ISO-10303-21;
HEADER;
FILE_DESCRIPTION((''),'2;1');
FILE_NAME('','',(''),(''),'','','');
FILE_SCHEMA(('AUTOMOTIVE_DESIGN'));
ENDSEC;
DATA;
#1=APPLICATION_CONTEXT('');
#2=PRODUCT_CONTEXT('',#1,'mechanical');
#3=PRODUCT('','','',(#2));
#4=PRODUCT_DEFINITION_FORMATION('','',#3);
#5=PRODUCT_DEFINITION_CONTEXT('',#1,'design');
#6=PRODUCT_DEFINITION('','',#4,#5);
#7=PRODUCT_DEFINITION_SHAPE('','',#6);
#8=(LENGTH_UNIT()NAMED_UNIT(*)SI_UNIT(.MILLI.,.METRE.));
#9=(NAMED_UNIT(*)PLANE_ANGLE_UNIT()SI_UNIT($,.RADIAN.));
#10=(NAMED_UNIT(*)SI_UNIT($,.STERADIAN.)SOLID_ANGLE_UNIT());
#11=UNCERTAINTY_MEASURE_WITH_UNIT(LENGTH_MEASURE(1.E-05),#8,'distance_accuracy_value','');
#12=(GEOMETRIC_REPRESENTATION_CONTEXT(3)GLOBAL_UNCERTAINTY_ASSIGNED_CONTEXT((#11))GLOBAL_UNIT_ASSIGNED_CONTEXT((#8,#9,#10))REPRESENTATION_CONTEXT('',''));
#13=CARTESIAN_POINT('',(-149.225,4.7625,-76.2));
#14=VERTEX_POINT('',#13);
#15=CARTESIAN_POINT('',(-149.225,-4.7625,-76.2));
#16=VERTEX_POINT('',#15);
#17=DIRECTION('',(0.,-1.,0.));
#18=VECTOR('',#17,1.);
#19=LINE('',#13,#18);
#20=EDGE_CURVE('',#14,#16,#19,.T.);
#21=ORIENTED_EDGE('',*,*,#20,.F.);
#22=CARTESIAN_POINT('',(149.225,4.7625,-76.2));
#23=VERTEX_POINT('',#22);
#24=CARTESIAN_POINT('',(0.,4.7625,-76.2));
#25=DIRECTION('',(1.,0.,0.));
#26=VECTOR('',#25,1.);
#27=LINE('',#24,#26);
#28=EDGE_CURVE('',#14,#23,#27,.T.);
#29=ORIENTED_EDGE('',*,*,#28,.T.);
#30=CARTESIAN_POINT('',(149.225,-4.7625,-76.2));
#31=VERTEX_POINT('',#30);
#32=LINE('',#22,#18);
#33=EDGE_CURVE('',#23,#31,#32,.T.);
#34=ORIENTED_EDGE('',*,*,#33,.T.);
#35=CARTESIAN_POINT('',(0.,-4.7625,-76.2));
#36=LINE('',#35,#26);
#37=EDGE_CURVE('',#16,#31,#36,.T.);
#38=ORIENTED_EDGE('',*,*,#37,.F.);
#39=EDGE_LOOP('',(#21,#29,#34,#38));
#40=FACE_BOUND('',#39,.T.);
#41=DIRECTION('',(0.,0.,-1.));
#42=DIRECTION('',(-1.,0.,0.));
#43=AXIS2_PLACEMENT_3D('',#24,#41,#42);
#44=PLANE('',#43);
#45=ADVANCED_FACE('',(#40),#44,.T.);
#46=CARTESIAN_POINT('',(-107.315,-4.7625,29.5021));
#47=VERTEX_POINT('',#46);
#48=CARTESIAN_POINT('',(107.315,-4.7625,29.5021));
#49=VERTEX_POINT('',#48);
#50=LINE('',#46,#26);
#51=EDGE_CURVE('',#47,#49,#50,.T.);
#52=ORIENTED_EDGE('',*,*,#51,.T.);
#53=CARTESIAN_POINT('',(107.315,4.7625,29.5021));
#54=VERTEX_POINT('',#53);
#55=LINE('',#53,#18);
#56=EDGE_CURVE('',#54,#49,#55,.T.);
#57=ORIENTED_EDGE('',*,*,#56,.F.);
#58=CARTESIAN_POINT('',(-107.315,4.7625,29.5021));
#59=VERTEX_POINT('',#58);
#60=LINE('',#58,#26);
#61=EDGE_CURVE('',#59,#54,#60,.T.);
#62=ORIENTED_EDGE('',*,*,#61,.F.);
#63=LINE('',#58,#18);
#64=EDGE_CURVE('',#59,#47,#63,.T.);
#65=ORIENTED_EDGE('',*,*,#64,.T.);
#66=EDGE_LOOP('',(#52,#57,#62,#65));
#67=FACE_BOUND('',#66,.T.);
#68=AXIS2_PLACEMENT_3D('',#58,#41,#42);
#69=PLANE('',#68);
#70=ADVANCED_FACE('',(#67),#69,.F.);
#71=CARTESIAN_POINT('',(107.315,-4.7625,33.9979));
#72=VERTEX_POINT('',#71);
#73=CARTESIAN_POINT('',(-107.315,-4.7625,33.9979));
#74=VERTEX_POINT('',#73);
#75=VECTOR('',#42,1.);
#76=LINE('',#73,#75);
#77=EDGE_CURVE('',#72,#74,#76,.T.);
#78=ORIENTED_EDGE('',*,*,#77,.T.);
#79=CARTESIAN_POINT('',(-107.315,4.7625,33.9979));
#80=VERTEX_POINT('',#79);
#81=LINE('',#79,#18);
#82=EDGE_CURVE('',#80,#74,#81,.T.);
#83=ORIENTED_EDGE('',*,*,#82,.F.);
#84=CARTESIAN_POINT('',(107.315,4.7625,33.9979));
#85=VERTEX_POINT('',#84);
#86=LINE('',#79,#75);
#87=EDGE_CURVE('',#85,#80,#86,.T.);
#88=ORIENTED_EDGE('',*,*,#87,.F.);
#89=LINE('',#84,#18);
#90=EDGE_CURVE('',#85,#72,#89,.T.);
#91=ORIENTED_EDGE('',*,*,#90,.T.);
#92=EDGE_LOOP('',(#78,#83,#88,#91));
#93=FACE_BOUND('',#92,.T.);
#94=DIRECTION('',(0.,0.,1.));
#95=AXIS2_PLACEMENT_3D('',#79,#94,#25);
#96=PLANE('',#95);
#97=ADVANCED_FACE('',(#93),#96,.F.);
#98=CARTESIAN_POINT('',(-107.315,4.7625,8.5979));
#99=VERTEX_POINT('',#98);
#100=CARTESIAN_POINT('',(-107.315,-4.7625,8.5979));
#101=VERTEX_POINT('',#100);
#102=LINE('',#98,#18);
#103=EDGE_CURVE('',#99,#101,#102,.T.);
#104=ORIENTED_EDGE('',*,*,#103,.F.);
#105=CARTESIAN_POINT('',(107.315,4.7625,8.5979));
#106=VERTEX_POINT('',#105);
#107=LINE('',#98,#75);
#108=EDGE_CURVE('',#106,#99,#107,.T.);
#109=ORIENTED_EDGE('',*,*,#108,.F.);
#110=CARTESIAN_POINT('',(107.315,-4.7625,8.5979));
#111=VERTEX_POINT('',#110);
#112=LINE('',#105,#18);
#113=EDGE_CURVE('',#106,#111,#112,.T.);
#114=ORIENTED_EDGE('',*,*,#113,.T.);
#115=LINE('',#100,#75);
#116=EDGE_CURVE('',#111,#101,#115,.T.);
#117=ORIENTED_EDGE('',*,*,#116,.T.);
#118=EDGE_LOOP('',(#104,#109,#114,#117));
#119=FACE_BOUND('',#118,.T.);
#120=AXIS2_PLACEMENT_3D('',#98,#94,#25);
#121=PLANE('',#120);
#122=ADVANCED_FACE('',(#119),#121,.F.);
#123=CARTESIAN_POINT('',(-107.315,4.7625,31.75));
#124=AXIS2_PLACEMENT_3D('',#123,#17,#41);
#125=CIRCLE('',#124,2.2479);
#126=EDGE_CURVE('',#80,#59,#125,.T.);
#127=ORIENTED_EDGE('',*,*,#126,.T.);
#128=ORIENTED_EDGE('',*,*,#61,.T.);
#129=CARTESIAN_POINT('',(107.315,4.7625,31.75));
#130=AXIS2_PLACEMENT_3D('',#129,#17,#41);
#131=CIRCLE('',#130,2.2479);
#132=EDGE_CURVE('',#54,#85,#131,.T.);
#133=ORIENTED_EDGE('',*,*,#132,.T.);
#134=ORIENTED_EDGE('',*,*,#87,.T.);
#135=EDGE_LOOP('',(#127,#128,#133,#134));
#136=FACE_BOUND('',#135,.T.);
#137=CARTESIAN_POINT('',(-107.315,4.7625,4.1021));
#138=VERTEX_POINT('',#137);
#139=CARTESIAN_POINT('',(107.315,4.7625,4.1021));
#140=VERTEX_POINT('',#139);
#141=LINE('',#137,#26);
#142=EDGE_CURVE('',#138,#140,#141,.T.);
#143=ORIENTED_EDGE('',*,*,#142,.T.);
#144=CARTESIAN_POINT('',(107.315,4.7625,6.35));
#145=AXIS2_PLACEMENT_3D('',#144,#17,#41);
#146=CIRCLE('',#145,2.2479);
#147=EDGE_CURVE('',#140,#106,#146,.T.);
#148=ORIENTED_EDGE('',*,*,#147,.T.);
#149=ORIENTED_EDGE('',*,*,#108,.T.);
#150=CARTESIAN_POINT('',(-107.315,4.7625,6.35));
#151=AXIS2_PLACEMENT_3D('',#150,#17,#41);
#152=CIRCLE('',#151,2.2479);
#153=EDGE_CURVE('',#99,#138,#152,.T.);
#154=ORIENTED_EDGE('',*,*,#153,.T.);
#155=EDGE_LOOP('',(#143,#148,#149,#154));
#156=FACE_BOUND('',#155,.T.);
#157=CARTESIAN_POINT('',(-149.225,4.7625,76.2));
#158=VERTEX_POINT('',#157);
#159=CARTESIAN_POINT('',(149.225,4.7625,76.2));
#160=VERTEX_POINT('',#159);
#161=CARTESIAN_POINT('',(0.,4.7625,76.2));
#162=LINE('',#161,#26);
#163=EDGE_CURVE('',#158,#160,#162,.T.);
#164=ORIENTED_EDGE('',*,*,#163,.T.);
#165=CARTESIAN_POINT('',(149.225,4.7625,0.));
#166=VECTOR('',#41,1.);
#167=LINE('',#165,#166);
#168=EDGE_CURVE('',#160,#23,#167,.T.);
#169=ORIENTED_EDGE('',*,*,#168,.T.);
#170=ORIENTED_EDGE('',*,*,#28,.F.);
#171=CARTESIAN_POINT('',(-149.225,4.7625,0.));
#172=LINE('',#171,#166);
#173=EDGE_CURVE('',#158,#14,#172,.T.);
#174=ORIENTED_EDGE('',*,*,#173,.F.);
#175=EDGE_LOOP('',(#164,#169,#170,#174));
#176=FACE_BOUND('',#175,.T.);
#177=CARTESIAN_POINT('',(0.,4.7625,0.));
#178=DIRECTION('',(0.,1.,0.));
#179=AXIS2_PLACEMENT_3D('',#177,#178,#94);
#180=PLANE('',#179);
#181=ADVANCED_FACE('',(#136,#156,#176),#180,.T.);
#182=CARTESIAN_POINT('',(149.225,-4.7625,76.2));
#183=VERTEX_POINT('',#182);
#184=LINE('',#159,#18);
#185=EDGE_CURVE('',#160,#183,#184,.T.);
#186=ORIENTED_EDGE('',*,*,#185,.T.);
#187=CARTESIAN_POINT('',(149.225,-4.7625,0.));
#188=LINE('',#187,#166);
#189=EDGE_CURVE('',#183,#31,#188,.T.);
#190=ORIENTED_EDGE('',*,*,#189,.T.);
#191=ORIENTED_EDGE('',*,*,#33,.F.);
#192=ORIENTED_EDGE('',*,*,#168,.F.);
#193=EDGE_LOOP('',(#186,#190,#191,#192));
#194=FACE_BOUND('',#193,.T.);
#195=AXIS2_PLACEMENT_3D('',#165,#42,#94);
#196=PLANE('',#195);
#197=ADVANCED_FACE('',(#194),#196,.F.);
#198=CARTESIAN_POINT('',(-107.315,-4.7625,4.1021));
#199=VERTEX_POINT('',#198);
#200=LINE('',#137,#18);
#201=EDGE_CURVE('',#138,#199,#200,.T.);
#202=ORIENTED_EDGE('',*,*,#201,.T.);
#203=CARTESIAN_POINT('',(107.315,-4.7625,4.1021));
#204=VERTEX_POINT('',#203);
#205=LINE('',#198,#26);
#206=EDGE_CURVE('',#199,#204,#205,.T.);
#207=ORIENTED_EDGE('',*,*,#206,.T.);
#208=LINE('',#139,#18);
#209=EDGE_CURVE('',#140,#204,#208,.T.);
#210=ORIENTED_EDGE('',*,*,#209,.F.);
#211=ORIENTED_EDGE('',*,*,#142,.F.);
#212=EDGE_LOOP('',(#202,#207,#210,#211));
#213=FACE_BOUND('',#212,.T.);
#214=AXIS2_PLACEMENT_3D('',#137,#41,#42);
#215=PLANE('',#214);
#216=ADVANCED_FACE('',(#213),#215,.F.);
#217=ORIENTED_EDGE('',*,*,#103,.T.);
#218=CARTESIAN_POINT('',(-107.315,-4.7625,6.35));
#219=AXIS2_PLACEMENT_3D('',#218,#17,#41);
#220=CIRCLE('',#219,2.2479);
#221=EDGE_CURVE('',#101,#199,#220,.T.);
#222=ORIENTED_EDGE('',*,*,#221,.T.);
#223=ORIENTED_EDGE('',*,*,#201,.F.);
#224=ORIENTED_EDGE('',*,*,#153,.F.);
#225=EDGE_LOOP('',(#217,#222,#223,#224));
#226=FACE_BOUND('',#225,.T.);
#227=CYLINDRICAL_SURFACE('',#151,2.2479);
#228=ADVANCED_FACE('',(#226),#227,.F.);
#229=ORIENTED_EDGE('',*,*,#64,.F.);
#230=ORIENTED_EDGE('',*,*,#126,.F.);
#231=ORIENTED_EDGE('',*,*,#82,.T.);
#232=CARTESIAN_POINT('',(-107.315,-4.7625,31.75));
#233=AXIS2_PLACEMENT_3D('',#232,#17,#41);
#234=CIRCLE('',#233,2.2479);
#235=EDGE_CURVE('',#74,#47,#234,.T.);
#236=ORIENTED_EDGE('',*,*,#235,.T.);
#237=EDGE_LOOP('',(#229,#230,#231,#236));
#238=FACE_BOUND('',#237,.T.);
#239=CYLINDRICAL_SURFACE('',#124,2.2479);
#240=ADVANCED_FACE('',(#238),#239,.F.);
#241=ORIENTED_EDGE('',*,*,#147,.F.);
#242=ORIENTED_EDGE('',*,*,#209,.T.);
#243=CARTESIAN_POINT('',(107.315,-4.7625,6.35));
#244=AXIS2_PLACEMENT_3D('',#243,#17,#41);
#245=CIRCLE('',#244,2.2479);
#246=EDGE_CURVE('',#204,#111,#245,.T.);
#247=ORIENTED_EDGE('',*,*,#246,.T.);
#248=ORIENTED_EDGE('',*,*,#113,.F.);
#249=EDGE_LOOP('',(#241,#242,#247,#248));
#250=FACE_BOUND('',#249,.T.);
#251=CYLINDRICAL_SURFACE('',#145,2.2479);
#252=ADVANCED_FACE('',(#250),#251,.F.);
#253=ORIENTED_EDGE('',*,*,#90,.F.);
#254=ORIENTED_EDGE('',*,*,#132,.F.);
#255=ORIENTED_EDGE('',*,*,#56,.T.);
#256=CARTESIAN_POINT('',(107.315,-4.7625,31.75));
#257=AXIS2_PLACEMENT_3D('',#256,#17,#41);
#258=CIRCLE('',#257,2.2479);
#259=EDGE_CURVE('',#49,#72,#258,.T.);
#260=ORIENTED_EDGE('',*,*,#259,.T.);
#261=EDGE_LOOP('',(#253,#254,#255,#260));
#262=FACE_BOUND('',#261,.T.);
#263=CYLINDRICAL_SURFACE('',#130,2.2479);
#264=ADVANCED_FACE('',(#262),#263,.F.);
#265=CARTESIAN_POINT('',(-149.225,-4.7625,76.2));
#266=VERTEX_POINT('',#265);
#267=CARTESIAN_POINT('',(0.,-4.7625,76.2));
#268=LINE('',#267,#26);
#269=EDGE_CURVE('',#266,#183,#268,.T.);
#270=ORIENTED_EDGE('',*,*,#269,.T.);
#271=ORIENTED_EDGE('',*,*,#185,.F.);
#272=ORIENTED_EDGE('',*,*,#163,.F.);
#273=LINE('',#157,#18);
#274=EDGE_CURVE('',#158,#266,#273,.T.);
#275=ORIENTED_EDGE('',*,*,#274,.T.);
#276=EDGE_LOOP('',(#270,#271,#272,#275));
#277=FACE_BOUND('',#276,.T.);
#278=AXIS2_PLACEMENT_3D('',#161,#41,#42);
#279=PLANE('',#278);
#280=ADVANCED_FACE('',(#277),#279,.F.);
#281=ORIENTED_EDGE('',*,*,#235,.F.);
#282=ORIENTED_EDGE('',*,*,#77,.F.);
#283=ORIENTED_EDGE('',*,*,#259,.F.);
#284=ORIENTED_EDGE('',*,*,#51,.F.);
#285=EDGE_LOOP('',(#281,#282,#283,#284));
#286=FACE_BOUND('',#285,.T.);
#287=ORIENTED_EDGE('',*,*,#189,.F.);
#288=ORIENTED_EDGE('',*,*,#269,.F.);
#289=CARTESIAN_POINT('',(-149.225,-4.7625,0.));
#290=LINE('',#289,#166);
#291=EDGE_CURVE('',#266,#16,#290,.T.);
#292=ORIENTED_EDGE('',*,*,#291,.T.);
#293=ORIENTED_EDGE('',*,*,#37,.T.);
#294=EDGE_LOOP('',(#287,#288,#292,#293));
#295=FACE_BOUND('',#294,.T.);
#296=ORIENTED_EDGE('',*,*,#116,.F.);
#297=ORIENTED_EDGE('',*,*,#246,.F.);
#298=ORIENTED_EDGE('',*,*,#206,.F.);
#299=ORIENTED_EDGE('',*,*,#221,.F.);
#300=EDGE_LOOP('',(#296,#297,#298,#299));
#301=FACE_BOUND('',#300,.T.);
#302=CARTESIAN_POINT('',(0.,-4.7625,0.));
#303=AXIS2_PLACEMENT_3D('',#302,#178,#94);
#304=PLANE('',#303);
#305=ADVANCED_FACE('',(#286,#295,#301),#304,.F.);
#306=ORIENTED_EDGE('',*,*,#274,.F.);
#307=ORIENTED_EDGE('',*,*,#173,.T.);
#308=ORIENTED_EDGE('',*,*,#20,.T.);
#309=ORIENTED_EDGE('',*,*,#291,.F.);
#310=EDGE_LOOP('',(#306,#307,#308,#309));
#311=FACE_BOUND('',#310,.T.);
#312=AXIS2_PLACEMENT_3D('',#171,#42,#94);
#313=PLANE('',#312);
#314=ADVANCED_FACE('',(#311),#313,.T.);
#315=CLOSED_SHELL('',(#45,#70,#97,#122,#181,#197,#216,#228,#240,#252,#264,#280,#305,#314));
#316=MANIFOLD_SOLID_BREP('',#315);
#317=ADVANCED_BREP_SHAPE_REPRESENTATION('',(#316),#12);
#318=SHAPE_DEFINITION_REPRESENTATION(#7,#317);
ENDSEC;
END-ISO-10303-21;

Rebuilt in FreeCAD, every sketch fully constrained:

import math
import FreeCAD as App
import Part
import Sketcher
from FreeCAD import Vector
Q = App.Units.Quantity


def add_polygon(sketch, points):
    """Adds a closed chain of lines whose ends are joined by coincident constraints."""
    first, n = sketch.GeometryCount, len(points)
    for a, b in zip(points, points[1:] + points[:1]):
        sketch.addGeometry(Part.LineSegment(App.Vector(*a, 0), App.Vector(*b, 0)), False)
    for i in range(n):
        sketch.addConstraint(Sketcher.Constraint("Coincident", first + i, 2, first + (i + 1) % n, 1))

doc = App.newDocument("Part")
body = doc.addObject("PartDesign::Body", "Body")

# Sketch on XZ plane
sketch1 = body.newObject("Sketcher::SketchObject", "Sketch")
sketch1.AttachmentSupport = (doc.getObject("XZ_Plane"), [""])
sketch1.MapMode = "FlatFace"
add_polygon(sketch1, [(-149, -76), (-149, 76), (149, 76), (149, -76)])  # lines 0-3
sketch1.addConstraint([
    Sketcher.Constraint("Vertical", 0),
    Sketcher.Constraint("Horizontal", 1),
    Sketcher.Constraint("Vertical", 2),
    Sketcher.Constraint("Horizontal", 3),
    Sketcher.Constraint("Symmetric", 0, 2, 2, 2, -1, 1),
    Sketcher.Constraint("DistanceY", 0, 1, 0, 2, Q("6 in")),
    Sketcher.Constraint("DistanceX", 1, 1, 1, 2, Q("11.75 in")),
])
pad1 = body.newObject("PartDesign::Pad", "Pad")
pad1.Profile = sketch1
pad1.Length = Q("0.375 in")
pad1.Midplane = True

# Sketch on XZ plane
sketch2 = body.newObject("Sketcher::SketchObject", "Sketch001")
sketch2.AttachmentSupport = (doc.getObject("XZ_Plane"), [""])
sketch2.MapMode = "FlatFace"
sketch2.AttachmentOffset = App.Placement(Vector(0, 0, 0.1875 * 25.4), App.Rotation())
sketch2.addGeometry([
    Part.LineSegment(Vector(107.3, 34, 0), Vector(-107.3, 34, 0)),  # 0
    Part.ArcOfCircle(Part.Circle(Vector(-107.3, 31.8, 0), Vector(0, 0, 1), 2.2), math.radians(90), math.radians(270)),  # 1
    Part.LineSegment(Vector(-107.3, 29.5, 0), Vector(107.3, 29.5, 0)),  # 2
    Part.ArcOfCircle(Part.Circle(Vector(107.3, 31.8, 0), Vector(0, 0, 1), 2.2), math.radians(-90), math.radians(90)),  # 3
    Part.LineSegment(Vector(107.3, 8.6, 0), Vector(-107.3, 8.6, 0)),  # 4
    Part.ArcOfCircle(Part.Circle(Vector(-107.3, 6.3, 0), Vector(0, 0, 1), 2.2), math.radians(90), math.radians(270)),  # 5
    Part.LineSegment(Vector(-107.3, 4.1, 0), Vector(107.3, 4.1, 0)),  # 6
    Part.ArcOfCircle(Part.Circle(Vector(107.3, 6.3, 0), Vector(0, 0, 1), 2.2), math.radians(-90), math.radians(90)),  # 7
], False)
sketch2.addConstraint([
    Sketcher.Constraint("Tangent", 0, 2, 1, 1),
    Sketcher.Constraint("Tangent", 1, 2, 2, 1),
    Sketcher.Constraint("Tangent", 2, 2, 3, 1),
    Sketcher.Constraint("Tangent", 3, 2, 0, 1),
    Sketcher.Constraint("Tangent", 4, 2, 5, 1),
    Sketcher.Constraint("Tangent", 5, 2, 6, 1),
    Sketcher.Constraint("Tangent", 6, 2, 7, 1),
    Sketcher.Constraint("Tangent", 7, 2, 4, 1),
    Sketcher.Constraint("Horizontal", 0),
    Sketcher.Constraint("Horizontal", 2),
    Sketcher.Constraint("Horizontal", 4),
    Sketcher.Constraint("Horizontal", 6),
    Sketcher.Constraint("Equal", 3, 5),
    Sketcher.Constraint("Vertical", 1, 3, 5, 3),
    Sketcher.Constraint("Vertical", 3, 3, 7, 3),
    Sketcher.Constraint("DistanceY", 5, 3, 1, 3, Q("1 in")),
    Sketcher.Constraint("DistanceX", 0, 2, 0, 1, Q("8.45 in")),
    Sketcher.Constraint("Radius", 1, Q("0.0885 in")),
    Sketcher.Constraint("DistanceY", -1, 1, 1, 3, Q("1.25 in")),
    Sketcher.Constraint("DistanceX", 1, 3, -1, 1, Q("4.225 in")),
])
pocket1 = body.newObject("PartDesign::Pocket", "Pocket")
pocket1.Profile = sketch2
pocket1.Type = "ThroughAll"

doc.recompute()
